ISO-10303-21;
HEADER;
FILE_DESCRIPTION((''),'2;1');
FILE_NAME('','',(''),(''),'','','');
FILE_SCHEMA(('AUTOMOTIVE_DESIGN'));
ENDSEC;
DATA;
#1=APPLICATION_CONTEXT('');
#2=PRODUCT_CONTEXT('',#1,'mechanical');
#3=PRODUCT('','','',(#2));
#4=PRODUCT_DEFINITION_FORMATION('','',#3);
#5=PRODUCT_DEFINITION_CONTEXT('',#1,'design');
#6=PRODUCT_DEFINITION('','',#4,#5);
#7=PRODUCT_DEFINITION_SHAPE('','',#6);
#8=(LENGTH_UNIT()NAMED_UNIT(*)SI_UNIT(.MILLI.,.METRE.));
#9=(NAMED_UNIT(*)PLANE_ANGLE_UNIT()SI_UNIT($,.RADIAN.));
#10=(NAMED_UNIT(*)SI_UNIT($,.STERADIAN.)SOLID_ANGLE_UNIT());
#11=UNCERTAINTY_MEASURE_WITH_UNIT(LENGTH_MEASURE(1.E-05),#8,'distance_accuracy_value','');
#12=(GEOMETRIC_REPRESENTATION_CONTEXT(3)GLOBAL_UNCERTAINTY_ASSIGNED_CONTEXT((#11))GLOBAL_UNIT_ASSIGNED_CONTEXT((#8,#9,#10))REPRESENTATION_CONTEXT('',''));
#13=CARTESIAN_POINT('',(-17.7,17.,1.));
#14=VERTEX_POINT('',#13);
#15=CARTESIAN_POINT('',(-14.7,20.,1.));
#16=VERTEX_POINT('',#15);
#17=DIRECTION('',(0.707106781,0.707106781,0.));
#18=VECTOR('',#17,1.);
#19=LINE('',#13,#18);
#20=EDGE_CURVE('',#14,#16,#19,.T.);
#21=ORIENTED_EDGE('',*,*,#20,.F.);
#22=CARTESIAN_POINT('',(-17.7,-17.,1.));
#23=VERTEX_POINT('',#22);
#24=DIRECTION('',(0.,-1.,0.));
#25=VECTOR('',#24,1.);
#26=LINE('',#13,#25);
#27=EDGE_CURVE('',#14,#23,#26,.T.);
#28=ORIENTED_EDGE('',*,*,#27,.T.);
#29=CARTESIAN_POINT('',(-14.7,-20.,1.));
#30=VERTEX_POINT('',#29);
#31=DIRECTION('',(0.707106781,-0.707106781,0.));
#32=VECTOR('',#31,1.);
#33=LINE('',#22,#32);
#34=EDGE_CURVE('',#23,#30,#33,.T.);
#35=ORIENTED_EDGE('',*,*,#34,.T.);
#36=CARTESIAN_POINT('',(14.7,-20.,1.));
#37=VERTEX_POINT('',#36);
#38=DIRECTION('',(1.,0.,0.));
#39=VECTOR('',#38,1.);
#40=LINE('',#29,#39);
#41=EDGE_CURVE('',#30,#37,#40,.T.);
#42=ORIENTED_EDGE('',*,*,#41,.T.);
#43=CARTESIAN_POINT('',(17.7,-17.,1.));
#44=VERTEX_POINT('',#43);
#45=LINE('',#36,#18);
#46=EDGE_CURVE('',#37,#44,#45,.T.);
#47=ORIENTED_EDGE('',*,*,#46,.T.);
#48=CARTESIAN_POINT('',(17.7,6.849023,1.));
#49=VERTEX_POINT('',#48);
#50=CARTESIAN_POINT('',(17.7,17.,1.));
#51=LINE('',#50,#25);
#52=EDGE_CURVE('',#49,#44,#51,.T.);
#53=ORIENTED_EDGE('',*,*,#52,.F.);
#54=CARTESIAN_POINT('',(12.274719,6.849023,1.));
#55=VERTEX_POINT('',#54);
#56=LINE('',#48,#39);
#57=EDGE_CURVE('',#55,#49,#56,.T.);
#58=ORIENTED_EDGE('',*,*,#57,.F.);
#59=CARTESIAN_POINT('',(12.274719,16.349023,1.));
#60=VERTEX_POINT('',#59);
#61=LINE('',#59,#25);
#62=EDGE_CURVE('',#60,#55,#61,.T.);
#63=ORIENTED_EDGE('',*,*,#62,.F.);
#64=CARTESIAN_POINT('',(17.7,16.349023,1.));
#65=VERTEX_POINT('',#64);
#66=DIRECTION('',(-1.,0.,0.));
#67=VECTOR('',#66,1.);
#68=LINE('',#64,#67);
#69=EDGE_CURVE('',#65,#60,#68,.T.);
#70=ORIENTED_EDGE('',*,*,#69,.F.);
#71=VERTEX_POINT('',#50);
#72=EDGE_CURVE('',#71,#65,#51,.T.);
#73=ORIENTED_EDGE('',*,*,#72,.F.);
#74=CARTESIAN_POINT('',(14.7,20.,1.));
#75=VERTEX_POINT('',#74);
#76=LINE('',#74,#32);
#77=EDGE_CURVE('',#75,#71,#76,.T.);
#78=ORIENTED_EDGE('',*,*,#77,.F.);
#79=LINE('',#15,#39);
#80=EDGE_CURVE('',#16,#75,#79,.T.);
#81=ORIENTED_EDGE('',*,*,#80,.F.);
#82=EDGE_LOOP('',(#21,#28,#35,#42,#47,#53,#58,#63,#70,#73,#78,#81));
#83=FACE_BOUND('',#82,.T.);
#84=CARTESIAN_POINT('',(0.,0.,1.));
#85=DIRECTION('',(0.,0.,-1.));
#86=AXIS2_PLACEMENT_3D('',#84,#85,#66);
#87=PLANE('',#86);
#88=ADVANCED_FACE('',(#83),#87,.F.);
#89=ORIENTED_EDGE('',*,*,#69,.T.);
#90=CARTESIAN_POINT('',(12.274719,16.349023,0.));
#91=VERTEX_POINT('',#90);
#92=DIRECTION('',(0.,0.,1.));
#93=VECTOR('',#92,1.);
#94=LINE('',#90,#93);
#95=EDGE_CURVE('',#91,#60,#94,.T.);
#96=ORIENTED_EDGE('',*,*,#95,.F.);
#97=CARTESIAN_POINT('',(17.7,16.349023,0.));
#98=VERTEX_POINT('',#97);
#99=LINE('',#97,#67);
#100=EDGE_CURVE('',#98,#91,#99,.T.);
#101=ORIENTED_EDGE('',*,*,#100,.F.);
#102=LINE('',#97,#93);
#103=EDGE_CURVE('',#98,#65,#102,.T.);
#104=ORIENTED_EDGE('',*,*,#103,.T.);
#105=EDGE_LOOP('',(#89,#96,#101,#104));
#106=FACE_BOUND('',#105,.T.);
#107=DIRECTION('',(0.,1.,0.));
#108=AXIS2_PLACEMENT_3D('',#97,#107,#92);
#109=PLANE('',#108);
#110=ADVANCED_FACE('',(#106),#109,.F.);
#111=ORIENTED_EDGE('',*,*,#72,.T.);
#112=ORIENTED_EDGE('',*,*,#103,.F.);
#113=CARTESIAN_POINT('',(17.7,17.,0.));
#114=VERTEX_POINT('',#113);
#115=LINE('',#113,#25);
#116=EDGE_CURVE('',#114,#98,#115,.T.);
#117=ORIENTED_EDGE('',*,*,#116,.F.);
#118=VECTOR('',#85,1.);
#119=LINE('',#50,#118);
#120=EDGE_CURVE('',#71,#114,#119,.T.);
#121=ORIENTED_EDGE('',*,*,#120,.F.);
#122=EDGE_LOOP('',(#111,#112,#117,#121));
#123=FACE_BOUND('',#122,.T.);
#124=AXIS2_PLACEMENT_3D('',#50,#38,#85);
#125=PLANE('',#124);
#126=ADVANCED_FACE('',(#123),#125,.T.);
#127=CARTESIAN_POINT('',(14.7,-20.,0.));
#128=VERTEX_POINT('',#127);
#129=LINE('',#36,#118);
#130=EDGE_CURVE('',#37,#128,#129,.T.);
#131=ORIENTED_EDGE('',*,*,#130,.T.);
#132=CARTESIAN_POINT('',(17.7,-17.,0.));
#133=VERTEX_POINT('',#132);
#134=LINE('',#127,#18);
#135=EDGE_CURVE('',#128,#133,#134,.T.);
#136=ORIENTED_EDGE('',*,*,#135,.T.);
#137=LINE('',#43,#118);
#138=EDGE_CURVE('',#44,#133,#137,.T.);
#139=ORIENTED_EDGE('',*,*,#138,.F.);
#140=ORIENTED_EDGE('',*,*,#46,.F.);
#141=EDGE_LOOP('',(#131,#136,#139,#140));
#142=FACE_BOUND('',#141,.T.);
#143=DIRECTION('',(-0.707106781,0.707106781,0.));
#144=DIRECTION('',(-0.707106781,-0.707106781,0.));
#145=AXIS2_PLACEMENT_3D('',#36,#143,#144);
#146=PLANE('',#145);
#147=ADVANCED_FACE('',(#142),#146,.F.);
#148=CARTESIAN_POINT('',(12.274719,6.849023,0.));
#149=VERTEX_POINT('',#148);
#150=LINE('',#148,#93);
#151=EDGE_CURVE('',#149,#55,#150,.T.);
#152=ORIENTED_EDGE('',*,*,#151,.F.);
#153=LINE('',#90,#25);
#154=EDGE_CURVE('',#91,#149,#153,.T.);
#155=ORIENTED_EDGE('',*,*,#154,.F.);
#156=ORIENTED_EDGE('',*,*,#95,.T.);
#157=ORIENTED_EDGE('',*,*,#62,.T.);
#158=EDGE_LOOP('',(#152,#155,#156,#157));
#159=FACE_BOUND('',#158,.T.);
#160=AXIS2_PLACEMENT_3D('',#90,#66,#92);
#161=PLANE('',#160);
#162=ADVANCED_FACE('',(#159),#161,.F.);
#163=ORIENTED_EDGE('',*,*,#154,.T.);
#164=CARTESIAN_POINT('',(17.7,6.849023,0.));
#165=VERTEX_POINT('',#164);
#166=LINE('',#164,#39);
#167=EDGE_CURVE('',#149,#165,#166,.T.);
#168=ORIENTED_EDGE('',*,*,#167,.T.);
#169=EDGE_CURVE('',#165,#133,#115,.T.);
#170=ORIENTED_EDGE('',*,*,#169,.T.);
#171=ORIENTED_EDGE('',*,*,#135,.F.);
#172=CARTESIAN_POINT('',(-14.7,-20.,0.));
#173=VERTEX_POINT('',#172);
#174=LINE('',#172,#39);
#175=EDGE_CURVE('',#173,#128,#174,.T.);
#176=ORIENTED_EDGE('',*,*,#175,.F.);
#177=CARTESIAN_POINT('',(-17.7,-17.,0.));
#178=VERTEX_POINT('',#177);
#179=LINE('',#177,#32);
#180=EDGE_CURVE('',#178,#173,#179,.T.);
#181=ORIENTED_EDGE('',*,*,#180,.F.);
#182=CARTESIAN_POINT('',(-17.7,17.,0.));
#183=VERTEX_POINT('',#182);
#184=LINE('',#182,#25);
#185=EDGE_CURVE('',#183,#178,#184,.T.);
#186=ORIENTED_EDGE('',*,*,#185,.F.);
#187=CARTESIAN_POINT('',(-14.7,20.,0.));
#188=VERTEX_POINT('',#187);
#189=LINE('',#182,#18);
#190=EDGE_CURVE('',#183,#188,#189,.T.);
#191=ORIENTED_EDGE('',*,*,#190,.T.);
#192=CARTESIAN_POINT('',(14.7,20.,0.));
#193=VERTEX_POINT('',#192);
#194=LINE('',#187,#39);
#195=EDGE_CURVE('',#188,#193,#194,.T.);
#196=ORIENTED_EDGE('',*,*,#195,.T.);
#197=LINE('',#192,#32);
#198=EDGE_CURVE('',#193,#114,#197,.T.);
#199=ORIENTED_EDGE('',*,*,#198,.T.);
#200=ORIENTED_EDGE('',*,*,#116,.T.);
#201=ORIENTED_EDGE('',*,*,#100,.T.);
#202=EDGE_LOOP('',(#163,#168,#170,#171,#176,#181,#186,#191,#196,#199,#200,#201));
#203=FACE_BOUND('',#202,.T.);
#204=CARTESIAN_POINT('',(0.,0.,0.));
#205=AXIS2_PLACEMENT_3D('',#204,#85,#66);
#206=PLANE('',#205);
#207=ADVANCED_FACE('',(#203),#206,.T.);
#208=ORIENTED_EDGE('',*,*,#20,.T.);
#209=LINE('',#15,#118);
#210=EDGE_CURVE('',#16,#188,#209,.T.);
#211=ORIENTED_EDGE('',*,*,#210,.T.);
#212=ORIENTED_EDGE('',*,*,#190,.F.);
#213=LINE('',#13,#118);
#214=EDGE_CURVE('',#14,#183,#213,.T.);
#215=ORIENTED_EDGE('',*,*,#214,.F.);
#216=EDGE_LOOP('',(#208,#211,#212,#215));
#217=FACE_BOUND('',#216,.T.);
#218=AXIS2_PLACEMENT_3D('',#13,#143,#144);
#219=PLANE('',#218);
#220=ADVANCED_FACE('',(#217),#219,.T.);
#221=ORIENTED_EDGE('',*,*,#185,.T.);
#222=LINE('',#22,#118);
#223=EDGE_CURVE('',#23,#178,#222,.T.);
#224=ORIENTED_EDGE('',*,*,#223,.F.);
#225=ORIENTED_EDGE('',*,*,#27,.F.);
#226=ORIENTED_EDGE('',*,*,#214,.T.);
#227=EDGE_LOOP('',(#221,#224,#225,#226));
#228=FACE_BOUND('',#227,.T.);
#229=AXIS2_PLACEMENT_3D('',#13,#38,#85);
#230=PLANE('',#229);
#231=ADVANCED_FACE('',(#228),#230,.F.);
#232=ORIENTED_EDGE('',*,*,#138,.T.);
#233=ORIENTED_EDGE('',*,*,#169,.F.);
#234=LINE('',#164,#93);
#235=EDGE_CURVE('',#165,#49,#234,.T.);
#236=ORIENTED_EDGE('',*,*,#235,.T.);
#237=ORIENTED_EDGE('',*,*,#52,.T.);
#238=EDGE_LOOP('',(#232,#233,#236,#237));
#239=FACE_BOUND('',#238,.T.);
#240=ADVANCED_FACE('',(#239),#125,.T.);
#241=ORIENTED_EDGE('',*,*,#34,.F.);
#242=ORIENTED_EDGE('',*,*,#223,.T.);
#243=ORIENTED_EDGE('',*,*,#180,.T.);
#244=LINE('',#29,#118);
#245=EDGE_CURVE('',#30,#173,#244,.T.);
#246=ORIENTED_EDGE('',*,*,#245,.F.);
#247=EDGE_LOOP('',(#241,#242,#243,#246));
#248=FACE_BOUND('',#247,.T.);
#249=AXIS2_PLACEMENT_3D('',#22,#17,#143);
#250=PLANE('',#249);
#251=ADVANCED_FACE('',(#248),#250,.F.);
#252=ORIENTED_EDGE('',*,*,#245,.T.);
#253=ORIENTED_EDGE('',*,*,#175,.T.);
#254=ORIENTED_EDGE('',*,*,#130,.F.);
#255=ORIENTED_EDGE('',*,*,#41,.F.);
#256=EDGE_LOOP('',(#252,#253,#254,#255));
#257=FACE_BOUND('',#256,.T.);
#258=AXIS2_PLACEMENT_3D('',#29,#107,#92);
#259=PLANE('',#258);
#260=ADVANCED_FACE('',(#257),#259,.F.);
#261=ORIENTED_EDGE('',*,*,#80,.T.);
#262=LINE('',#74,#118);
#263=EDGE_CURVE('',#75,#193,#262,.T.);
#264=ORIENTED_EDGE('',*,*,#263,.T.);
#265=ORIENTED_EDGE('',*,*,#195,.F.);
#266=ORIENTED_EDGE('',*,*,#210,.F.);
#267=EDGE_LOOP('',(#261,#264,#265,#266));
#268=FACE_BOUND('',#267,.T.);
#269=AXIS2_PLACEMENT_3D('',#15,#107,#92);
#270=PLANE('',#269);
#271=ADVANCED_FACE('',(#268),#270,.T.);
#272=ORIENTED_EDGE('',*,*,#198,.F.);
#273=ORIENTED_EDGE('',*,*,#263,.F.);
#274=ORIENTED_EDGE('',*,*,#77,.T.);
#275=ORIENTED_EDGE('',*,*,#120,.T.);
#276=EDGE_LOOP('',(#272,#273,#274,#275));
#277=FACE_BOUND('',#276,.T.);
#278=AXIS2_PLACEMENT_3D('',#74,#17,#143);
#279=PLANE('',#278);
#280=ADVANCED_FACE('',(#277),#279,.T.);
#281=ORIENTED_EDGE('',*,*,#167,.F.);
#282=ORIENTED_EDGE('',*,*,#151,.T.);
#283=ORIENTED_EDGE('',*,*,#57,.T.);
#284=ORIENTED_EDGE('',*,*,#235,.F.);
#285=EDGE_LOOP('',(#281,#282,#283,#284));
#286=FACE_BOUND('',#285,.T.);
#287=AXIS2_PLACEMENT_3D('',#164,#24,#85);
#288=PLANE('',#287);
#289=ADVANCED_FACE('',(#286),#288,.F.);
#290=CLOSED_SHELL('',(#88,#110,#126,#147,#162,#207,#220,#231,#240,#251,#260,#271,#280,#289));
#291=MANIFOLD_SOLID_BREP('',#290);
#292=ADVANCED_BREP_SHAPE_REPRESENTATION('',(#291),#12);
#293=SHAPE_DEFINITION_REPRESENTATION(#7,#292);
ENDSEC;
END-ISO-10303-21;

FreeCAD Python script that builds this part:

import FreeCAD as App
import Part
import Sketcher
from FreeCAD import Vector

doc = App.newDocument("Part")
body = doc.addObject("PartDesign::Body", "Body")

# Sketch on XY plane
sketch1 = body.newObject("Sketcher::SketchObject", "Sketch")
sketch1.AttachmentSupport = (doc.getObject("XY_Plane"), [""])
sketch1.MapMode = "FlatFace"
sketch1.addGeometry([
    Part.LineSegment(Vector(14.7, 20, 0), Vector(-14.7, 20, 0)),  # 0
    Part.LineSegment(Vector(-14.7, 20, 0), Vector(-17.7, 17, 0)),  # 1
    Part.LineSegment(Vector(-17.7, 17, 0), Vector(-17.7, -17, 0)),  # 2
    Part.LineSegment(Vector(-17.7, -17, 0), Vector(-14.7, -20, 0)),  # 3
    Part.LineSegment(Vector(-14.7, -20, 0), Vector(14.7, -20, 0)),  # 4
    Part.LineSegment(Vector(14.7, -20, 0), Vector(17.7, -17, 0)),  # 5
    Part.LineSegment(Vector(17.7, -17, 0), Vector(17.7, 17, 0)),  # 6
    Part.LineSegment(Vector(17.7, 17, 0), Vector(14.7, 20, 0)),  # 7
], False)
sketch1.addConstraint([
    Sketcher.Constraint("Coincident", 0, 2, 1, 1),
    Sketcher.Constraint("Coincident", 1, 2, 2, 1),
    Sketcher.Constraint("Coincident", 2, 2, 3, 1),
    Sketcher.Constraint("Coincident", 3, 2, 4, 1),
    Sketcher.Constraint("Coincident", 4, 2, 5, 1),
    Sketcher.Constraint("Coincident", 5, 2, 6, 1),
    Sketcher.Constraint("Coincident", 6, 2, 7, 1),
    Sketcher.Constraint("Coincident", 7, 2, 0, 1),
    Sketcher.Constraint("Horizontal", 0),
    Sketcher.Constraint("Vertical", 2),
    Sketcher.Constraint("Horizontal", 4),
    Sketcher.Constraint("Vertical", 6),
    Sketcher.Constraint("Symmetric", 0, 2, 4, 2, -1, 1),
    Sketcher.Constraint("Symmetric", 1, 2, 5, 2, -1, 1),
    Sketcher.Constraint("Perpendicular", 1, 3),
    Sketcher.Constraint("Perpendicular", 5, 7),
    Sketcher.Constraint("Horizontal", 2, 2, 5, 2),
    Sketcher.Constraint("Horizontal", 1, 2, 6, 2),
    Sketcher.Constraint("Vertical", 0, 2, 3, 2),
    Sketcher.Constraint("DistanceY", 2, 2, 2, 1, 34.0),
    Sketcher.Constraint("DistanceX", 0, 2, 0, 1, 29.4),
    Sketcher.Constraint("DistanceY", -1, 1, 0, 2, 20.0),
])
pad1 = body.newObject("PartDesign::Pad", "Pad")
pad1.Profile = sketch1
pad1.Length = 1

# Sketch on XY plane
sketch2 = body.newObject("Sketcher::SketchObject", "Sketch001")
sketch2.AttachmentSupport = (doc.getObject("XY_Plane"), [""])
sketch2.MapMode = "FlatFace"
sketch2.AttachmentOffset = App.Placement(Vector(0, 0, 1), App.Rotation())
sketch2.addGeometry([
    Part.LineSegment(Vector(12, 16, 0), Vector(12, 7, 0)),
    Part.LineSegment(Vector(12, 7, 0), Vector(18, 7, 0)),
    Part.LineSegment(Vector(18, 7, 0), Vector(18, 16, 0)),
    Part.LineSegment(Vector(18, 16, 0), Vector(12, 16, 0)),
], False)
sketch2.addConstraint([
    Sketcher.Constraint("Coincident", 0, 2, 1, 1),
    Sketcher.Constraint("Coincident", 1, 2, 2, 1),
    Sketcher.Constraint("Coincident", 2, 2, 3, 1),
    Sketcher.Constraint("Coincident", 3, 2, 0, 1),
    Sketcher.Constraint("Vertical", 0),
    Sketcher.Constraint("Horizontal", 1),
    Sketcher.Constraint("Vertical", 2),
    Sketcher.Constraint("Horizontal", 3),
    Sketcher.Constraint("DistanceY", 0, 2, 0, 1, 9.5),
    Sketcher.Constraint("DistanceX", -1, 1, 1, 2, 17.7),
    Sketcher.Constraint("DistanceX", 1, 1, 1, 2, 5.425281),
    Sketcher.Constraint("DistanceY", -1, 1, 0, 2, 6.849023),
])
pocket1 = body.newObject("PartDesign::Pocket", "Pocket")
pocket1.Profile = sketch2
pocket1.Type = "ThroughAll"

doc.recompute()
